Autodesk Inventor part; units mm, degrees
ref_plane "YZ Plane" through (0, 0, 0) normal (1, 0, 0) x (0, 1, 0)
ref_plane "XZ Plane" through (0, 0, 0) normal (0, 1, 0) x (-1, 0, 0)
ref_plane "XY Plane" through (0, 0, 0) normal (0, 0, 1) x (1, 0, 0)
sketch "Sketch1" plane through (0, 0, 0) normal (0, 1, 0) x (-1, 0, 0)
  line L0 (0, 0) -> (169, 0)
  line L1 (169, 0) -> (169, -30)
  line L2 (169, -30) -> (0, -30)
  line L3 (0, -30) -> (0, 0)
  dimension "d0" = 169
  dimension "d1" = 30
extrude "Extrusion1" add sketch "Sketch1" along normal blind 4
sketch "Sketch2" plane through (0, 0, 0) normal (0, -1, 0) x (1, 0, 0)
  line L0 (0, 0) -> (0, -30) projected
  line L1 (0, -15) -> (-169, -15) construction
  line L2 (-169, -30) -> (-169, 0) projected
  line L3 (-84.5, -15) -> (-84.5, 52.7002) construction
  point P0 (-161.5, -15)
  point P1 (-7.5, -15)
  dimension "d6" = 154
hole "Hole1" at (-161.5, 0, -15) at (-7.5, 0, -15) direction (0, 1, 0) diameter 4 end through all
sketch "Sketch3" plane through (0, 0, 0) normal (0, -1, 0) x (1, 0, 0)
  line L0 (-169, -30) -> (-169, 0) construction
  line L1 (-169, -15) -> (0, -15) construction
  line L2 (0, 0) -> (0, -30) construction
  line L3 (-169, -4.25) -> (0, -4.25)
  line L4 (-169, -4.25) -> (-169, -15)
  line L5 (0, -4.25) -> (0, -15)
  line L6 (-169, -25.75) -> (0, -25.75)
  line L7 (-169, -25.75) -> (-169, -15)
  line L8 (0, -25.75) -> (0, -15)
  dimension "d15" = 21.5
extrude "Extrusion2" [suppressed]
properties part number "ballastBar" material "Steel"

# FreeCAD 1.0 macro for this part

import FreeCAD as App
import Part
import Sketcher
from FreeCAD import Vector

doc = App.newDocument("Part")
params = doc.addObject("Spreadsheet::Sheet", "Params")
for row, (alias, value) in enumerate([
    ("sketch1_width", "169 mm"),
    ("sketch1_height", "30 mm"),
    ("pad1_length", "4 mm"),
    ("sketch2_diameter", "4 mm"),
    ("hole_diameter", "4 mm"),
], start=1):
    params.set(f"A{row}", alias)
    params.set(f"B{row}", "=" + value)
    params.setAlias(f"B{row}", alias)

body = doc.addObject("PartDesign::Body", "Body")

# Sketch on XZ plane
sketch1 = body.newObject("Sketcher::SketchObject", "Sketch")
sketch1.AttachmentSupport = (doc.getObject("XZ_Plane"), [""])
sketch1.MapMode = "FlatFace"
sketch1.addGeometry([
    Part.LineSegment(Vector(-169, 0, 0), Vector(0, 0, 0)),
    Part.LineSegment(Vector(0, 0, 0), Vector(0, -30, 0)),
    Part.LineSegment(Vector(0, -30, 0), Vector(-169, -30, 0)),
    Part.LineSegment(Vector(-169, -30, 0), Vector(-169, 0, 0)),
], False)
sketch1.addConstraint([
    Sketcher.Constraint("Coincident", 0, 2, 1, 1),
    Sketcher.Constraint("Coincident", 1, 2, 2, 1),
    Sketcher.Constraint("Coincident", 2, 2, 3, 1),
    Sketcher.Constraint("Coincident", 3, 2, 0, 1),
    Sketcher.Constraint("Horizontal", 0),
    Sketcher.Constraint("Vertical", 1),
    Sketcher.Constraint("Horizontal", 2),
    Sketcher.Constraint("Vertical", 3),
    Sketcher.Constraint("Coincident", 0, 2, -1, 1),
    Sketcher.Constraint("DistanceX", 0, 1, 0, 2, 169.0),
    Sketcher.Constraint("DistanceY", 1, 2, 1, 1, 30.0),
])
sketch1.setExpression("Constraints[9]", "Params.sketch1_width")
sketch1.setExpression("Constraints[10]", "Params.sketch1_height")
pad1 = body.newObject("PartDesign::Pad", "Pad")
pad1.Profile = sketch1
pad1.setExpression("Length", "Params.pad1_length")
pad1.Reversed = True

# Sketch on XZ plane
sketch2 = body.newObject("Sketcher::SketchObject", "Sketch001")
sketch2.AttachmentSupport = (doc.getObject("XZ_Plane"), [""])
sketch2.MapMode = "FlatFace"
sketch2.addGeometry([
    Part.Circle(Vector(-161.5, -15, 0), Vector(0, 0, 1), 2),
    Part.Circle(Vector(-7.5, -15, 0), Vector(0, 0, 1), 2),
], False)
sketch2.addConstraint([
    Sketcher.Constraint("Equal", 0, 1),
    Sketcher.Constraint("Horizontal", 0, 3, 1, 3),
    Sketcher.Constraint("Diameter", 0, 4.0),
    Sketcher.Constraint("DistanceY", 0, 3, -1, 1, 15.0),
    Sketcher.Constraint("DistanceX", 0, 3, 1, 3, 154.0),
    Sketcher.Constraint("DistanceX", 0, 3, -1, 1, 161.5),
])
sketch2.setExpression("Constraints[2]", "Params.sketch2_diameter")
doc.recompute()
hole = body.newObject("PartDesign::Hole", "Hole")
hole.Profile = sketch2
hole.ThreadType = "None"
hole.setExpression("Diameter", "Params.hole_diameter")
hole.DepthType = "ThroughAll"

doc.recompute()
